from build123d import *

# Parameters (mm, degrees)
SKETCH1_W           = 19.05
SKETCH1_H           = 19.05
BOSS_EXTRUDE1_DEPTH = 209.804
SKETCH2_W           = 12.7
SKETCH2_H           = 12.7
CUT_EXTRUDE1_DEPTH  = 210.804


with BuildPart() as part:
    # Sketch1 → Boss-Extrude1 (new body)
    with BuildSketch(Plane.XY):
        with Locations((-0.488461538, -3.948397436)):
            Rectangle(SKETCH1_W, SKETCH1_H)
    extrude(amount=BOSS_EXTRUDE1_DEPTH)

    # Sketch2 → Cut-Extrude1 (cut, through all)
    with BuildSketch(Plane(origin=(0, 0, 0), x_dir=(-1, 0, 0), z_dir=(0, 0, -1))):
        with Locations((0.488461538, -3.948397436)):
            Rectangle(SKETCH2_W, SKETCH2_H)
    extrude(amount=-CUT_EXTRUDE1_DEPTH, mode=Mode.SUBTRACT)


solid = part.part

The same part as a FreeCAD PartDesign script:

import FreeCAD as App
import Part
import Sketcher

V = App.Vector
Q = App.Units.Quantity


def add_polygon(sketch, points):
    """Adds a closed chain of lines whose ends are joined by coincident constraints."""
    first, n = sketch.GeometryCount, len(points)
    for a, b in zip(points, points[1:] + points[:1]):
        sketch.addGeometry(Part.LineSegment(App.Vector(*a, 0), App.Vector(*b, 0)), False)
    for i in range(n):
        sketch.addConstraint(Sketcher.Constraint("Coincident", first + i, 2, first + (i + 1) % n, 1))

doc = App.newDocument("Part")
body = doc.addObject("PartDesign::Body", "Body")

# Sketch on XY plane
sketch1 = body.newObject("Sketcher::SketchObject", "Sketch")
sketch1.AttachmentSupport = (doc.getObject("XY_Plane"), [""])
sketch1.MapMode = "FlatFace"
add_polygon(sketch1, [(-10, 6), (-10, -13), (9, -13), (9, 6)])  # lines 0-3
sketch1.addConstraint([
    Sketcher.Constraint("Vertical", 0),
    Sketcher.Constraint("Horizontal", 1),
    Sketcher.Constraint("Vertical", 2),
    Sketcher.Constraint("Horizontal", 3),
    Sketcher.Constraint("Equal", 3, 0),
    Sketcher.Constraint("DistanceX", 1, 1, 1, 2, Q("0.75 in")),
    Sketcher.Constraint("DistanceX", 0, 2, -1, 1, Q("10.013462 mm")),
    Sketcher.Constraint("DistanceY", 0, 2, -1, 1, Q("13.473397 mm")),
])
pad1 = body.newObject("PartDesign::Pad", "Pad")
pad1.Profile = sketch1
pad1.Length = Q("8.26 in")

# Sketch on XY plane
sketch2 = body.newObject("Sketcher::SketchObject", "Sketch001")
sketch2.AttachmentSupport = (doc.getObject("XY_Plane"), [""])
sketch2.MapMode = "FlatFace"
add_polygon(sketch2, [(6, 2), (6, -10), (-7, -10), (-7, 2)])  # lines 0-3
sketch2.addConstraint([
    Sketcher.Constraint("Vertical", 0),
    Sketcher.Constraint("Horizontal", 1),
    Sketcher.Constraint("Vertical", 2),
    Sketcher.Constraint("Horizontal", 3),
    Sketcher.Constraint("Equal", 3, 0),
    Sketcher.Constraint("DistanceX", 1, 2, 1, 1, Q("0.5 in")),
    Sketcher.Constraint("DistanceX", -1, 1, 0, 2, Q("5.861538 mm")),
    Sketcher.Constraint("DistanceY", 0, 2, -1, 1, Q("10.298397 mm")),
])
pocket1 = body.newObject("PartDesign::Pocket", "Pocket")
pocket1.Profile = sketch2
pocket1.Type = "ThroughAll"
pocket1.Reversed = True

doc.recompute()
